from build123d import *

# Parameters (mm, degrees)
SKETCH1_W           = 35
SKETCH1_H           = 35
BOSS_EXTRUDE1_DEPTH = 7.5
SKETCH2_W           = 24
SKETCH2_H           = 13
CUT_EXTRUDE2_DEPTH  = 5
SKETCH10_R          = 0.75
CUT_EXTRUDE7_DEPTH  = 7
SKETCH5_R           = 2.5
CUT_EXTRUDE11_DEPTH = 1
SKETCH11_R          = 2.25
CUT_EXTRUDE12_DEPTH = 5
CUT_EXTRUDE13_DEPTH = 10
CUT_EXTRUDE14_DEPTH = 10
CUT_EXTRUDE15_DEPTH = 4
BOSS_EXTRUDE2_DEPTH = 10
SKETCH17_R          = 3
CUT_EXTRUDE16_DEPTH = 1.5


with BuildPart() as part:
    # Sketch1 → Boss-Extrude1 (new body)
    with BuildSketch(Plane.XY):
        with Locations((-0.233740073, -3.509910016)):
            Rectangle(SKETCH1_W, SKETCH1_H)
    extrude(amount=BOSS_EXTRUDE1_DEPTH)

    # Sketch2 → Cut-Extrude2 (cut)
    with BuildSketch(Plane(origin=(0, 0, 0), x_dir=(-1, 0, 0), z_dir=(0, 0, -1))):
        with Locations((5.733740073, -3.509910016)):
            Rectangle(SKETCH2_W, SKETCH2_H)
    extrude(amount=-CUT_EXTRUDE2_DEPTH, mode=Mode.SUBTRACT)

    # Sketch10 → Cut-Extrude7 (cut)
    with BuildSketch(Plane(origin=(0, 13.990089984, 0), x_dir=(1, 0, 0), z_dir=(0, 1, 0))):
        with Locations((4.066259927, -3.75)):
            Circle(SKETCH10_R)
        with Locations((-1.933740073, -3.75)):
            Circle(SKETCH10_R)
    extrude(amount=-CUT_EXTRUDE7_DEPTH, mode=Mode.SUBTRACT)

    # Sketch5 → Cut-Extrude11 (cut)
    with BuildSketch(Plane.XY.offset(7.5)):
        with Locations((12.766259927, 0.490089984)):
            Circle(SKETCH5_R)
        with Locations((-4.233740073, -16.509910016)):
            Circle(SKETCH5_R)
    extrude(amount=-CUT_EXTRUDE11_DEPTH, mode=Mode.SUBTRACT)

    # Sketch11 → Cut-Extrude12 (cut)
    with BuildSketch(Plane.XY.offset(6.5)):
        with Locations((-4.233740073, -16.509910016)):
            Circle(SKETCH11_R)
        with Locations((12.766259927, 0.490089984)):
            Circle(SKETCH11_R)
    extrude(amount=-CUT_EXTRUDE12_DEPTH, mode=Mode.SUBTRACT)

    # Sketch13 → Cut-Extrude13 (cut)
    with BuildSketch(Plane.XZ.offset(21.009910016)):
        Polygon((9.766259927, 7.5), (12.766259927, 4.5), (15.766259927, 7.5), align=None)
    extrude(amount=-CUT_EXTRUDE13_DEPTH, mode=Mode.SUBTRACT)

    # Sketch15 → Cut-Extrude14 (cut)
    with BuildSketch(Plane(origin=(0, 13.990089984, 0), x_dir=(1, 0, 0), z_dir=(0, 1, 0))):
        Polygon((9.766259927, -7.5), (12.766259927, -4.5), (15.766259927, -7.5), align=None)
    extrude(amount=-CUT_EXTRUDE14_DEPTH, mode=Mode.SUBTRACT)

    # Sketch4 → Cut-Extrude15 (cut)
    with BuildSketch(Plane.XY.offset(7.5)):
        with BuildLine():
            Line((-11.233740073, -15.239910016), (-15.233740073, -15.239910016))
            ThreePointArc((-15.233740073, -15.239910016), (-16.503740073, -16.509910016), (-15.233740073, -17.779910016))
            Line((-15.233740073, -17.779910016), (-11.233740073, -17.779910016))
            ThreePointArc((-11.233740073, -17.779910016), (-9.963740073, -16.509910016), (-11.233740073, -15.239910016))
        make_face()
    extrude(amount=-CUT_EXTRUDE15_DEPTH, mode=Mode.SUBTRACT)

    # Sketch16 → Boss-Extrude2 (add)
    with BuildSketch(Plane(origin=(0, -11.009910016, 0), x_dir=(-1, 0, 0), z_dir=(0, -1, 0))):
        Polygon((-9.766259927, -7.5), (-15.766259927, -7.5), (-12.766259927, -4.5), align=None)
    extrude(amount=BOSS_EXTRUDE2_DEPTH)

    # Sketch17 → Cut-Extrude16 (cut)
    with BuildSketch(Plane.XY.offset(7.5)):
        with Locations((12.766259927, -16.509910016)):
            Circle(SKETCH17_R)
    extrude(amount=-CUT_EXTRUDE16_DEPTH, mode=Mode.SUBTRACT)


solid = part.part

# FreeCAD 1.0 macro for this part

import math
import FreeCAD as App
import Part
import Sketcher
from FreeCAD import Vector


def add_polygon(sketch, points):
    """Adds a closed chain of lines whose ends are joined by coincident constraints."""
    first, n = sketch.GeometryCount, len(points)
    for a, b in zip(points, points[1:] + points[:1]):
        sketch.addGeometry(Part.LineSegment(App.Vector(*a, 0), App.Vector(*b, 0)), False)
    for i in range(n):
        sketch.addConstraint(Sketcher.Constraint("Coincident", first + i, 2, first + (i + 1) % n, 1))

doc = App.newDocument("Part")
params = doc.addObject("Spreadsheet::Sheet", "Params")
for row, (alias, value) in enumerate([
    ("sketch1_width", "35 mm"),
    ("pad1_length", "7.5 mm"),
    ("sketch2_width", "24 mm"),
    ("sketch2_height", "13 mm"),
    ("pocket1_length", "5 mm"),
    ("sketch3_diameter", "1.5 mm"),
    ("pocket2_length", "7 mm"),
    ("sketch4_diameter", "5 mm"),
    ("pocket3_length", "1 mm"),
    ("sketch5_diameter", "4.5 mm"),
    ("pocket4_length", "5 mm"),
    ("sketch6_width", "6 mm"),
    ("pocket5_length", "10 mm"),
    ("sketch7_width", "6 mm"),
    ("pocket6_length", "10 mm"),
    ("sketch8_width", "4 mm"),
    ("sketch8_radius", "1.27 mm"),
    ("pocket7_length", "4 mm"),
    ("sketch9_width", "6 mm"),
    ("pad2_length", "10 mm"),
    ("sketch10_diameter", "6 mm"),
    ("pocket8_length", "1.5 mm"),
], start=1):
    params.set(f"A{row}", alias)
    params.set(f"B{row}", "=" + value)
    params.setAlias(f"B{row}", alias)

body = doc.addObject("PartDesign::Body", "Body")

# Sketch on XY plane
sketch1 = body.newObject("Sketcher::SketchObject", "Sketch")
sketch1.AttachmentSupport = (doc.getObject("XY_Plane"), [""])
sketch1.MapMode = "FlatFace"
add_polygon(sketch1, [(-18, 14), (-18, -21), (17, -21), (17, 14)])  # lines 0-3
sketch1.addConstraint([
    Sketcher.Constraint("Vertical", 0),
    Sketcher.Constraint("Horizontal", 1),
    Sketcher.Constraint("Vertical", 2),
    Sketcher.Constraint("Horizontal", 3),
    Sketcher.Constraint("Equal", 3, 0),
    Sketcher.Constraint("DistanceX", 1, 1, 1, 2, 35.0),
    Sketcher.Constraint("DistanceX", 0, 2, -1, 1, 17.73374),
    Sketcher.Constraint("DistanceY", 0, 2, -1, 1, 21.00991),
])
sketch1.setExpression("Constraints[9]", "Params.sketch1_width")
pad1 = body.newObject("PartDesign::Pad", "Pad")
pad1.Profile = sketch1
pad1.setExpression("Length", "Params.pad1_length")

# Sketch on XY plane
sketch2 = body.newObject("Sketcher::SketchObject", "Sketch001")
sketch2.AttachmentSupport = (doc.getObject("XY_Plane"), [""])
sketch2.MapMode = "FlatFace"
add_polygon(sketch2, [(6, 3), (6, -10), (-18, -10), (-18, 3)])  # lines 0-3
sketch2.addConstraint([
    Sketcher.Constraint("Vertical", 0),
    Sketcher.Constraint("Horizontal", 1),
    Sketcher.Constraint("Vertical", 2),
    Sketcher.Constraint("Horizontal", 3),
    Sketcher.Constraint("DistanceX", 1, 2, 1, 1, 24.0),
    Sketcher.Constraint("DistanceY", 0, 2, 0, 1, 13.0),
    Sketcher.Constraint("DistanceX", -1, 1, 0, 2, 6.26626),
    Sketcher.Constraint("DistanceY", 0, 2, -1, 1, 10.00991),
])
sketch2.setExpression("Constraints[8]", "Params.sketch2_width")
sketch2.setExpression("Constraints[9]", "Params.sketch2_height")
pocket1 = body.newObject("PartDesign::Pocket", "Pocket")
pocket1.Profile = sketch2
pocket1.setExpression("Length", "Params.pocket1_length")
pocket1.Reversed = True

# Sketch on XZ plane
sketch3 = body.newObject("Sketcher::SketchObject", "Sketch002")
sketch3.AttachmentSupport = (doc.getObject("XZ_Plane"), [""])
sketch3.MapMode = "FlatFace"
sketch3.AttachmentOffset = App.Placement(Vector(0, 0, -13.99009), App.Rotation())
sketch3.addGeometry([
    Part.Circle(Vector(4.1, 3.8, 0), Vector(0, 0, 1), 0.8),
    Part.Circle(Vector(-1.9, 3.8, 0), Vector(0, 0, 1), 0.8),
], False)
sketch3.addConstraint([
    Sketcher.Constraint("Equal", 0, 1),
    Sketcher.Constraint("Horizontal", 0, 3, 1, 3),
    Sketcher.Constraint("Diameter", 0, 1.5),
    Sketcher.Constraint("DistanceX", 1, 3, 0, 3, 6.0),
    Sketcher.Constraint("DistanceY", -1, 1, 0, 3, 3.75),
    Sketcher.Constraint("DistanceX", -1, 1, 0, 3, 4.06626),
])
sketch3.setExpression("Constraints[2]", "Params.sketch3_diameter")
pocket2 = body.newObject("PartDesign::Pocket", "Pocket001")
pocket2.Profile = sketch3
pocket2.setExpression("Length", "Params.pocket2_length")
pocket2.Reversed = True

# Sketch on XY plane
sketch4 = body.newObject("Sketcher::SketchObject", "Sketch003")
sketch4.AttachmentSupport = (doc.getObject("XY_Plane"), [""])
sketch4.MapMode = "FlatFace"
sketch4.AttachmentOffset = App.Placement(Vector(0, 0, 7.5), App.Rotation())
sketch4.addGeometry([
    Part.Circle(Vector(12.8, 0.5, 0), Vector(0, 0, 1), 2.5),
    Part.Circle(Vector(-4.2, -16.5, 0), Vector(0, 0, 1), 2.5),
], False)
sketch4.addConstraint([
    Sketcher.Constraint("Equal", 0, 1),
    Sketcher.Constraint("Diameter", 0, 5.0),
    Sketcher.Constraint("DistanceX", 1, 3, 0, 3, 17.0),
    Sketcher.Constraint("DistanceY", 1, 3, 0, 3, 17.0),
    Sketcher.Constraint("DistanceX", -1, 1, 0, 3, 12.76626),
    Sketcher.Constraint("DistanceY", -1, 1, 0, 3, 0.49009),
])
sketch4.setExpression("Constraints[1]", "Params.sketch4_diameter")
pocket3 = body.newObject("PartDesign::Pocket", "Pocket002")
pocket3.Profile = sketch4
pocket3.setExpression("Length", "Params.pocket3_length")

# Sketch on XY plane
sketch5 = body.newObject("Sketcher::SketchObject", "Sketch004")
sketch5.AttachmentSupport = (doc.getObject("XY_Plane"), [""])
sketch5.MapMode = "FlatFace"
sketch5.AttachmentOffset = App.Placement(Vector(0, 0, 6.5), App.Rotation())
sketch5.addGeometry([
    Part.Circle(Vector(-4.2, -16.5, 0), Vector(0, 0, 1), 2.2),
    Part.Circle(Vector(12.8, 0.5, 0), Vector(0, 0, 1), 2.2),
], False)
sketch5.addConstraint([
    Sketcher.Constraint("Equal", 0, 1),
    Sketcher.Constraint("Diameter", 0, 4.5),
    Sketcher.Constraint("DistanceX", 0, 3, 1, 3, 17.0),
    Sketcher.Constraint("DistanceY", 0, 3, 1, 3, 17.0),
    Sketcher.Constraint("DistanceX", 0, 3, -1, 1, 4.23374),
    Sketcher.Constraint("DistanceY", 0, 3, -1, 1, 16.50991),
])
sketch5.setExpression("Constraints[1]", "Params.sketch5_diameter")
pocket4 = body.newObject("PartDesign::Pocket", "Pocket003")
pocket4.Profile = sketch5
pocket4.setExpression("Length", "Params.pocket4_length")

# Sketch on XZ plane
sketch6 = body.newObject("Sketcher::SketchObject", "Sketch005")
sketch6.AttachmentSupport = (doc.getObject("XZ_Plane"), [""])
sketch6.MapMode = "FlatFace"
sketch6.AttachmentOffset = App.Placement(Vector(0, 0, 21.00991), App.Rotation())
add_polygon(sketch6, [(9.8, 7.5), (12.8, 4.5), (15.8, 7.5)])  # lines 0-2
sketch6.addConstraint([
    Sketcher.Constraint("Horizontal", 2),
    Sketcher.Constraint("Perpendicular", 0, 1),
    Sketcher.Constraint("Equal", 0, 1),
    Sketcher.Constraint("DistanceX", 2, 2, 2, 1, 6.0),
    Sketcher.Constraint("DistanceY", -1, 1, 0, 2, 4.5),
    Sketcher.Constraint("DistanceX", -1, 1, 0, 2, 12.76626),
])
sketch6.setExpression("Constraints[6]", "Params.sketch6_width")
pocket5 = body.newObject("PartDesign::Pocket", "Pocket004")
pocket5.Profile = sketch6
pocket5.setExpression("Length", "Params.pocket5_length")

# Sketch on XZ plane
sketch7 = body.newObject("Sketcher::SketchObject", "Sketch006")
sketch7.AttachmentSupport = (doc.getObject("XZ_Plane"), [""])
sketch7.MapMode = "FlatFace"
sketch7.AttachmentOffset = App.Placement(Vector(0, 0, -13.99009), App.Rotation())
add_polygon(sketch7, [(12.8, 4.5), (9.8, 7.5), (15.8, 7.5)])  # lines 0-2
sketch7.addConstraint([
    Sketcher.Constraint("Horizontal", 1),
    Sketcher.Constraint("Perpendicular", 0, 2),
    Sketcher.Constraint("Equal", 0, 2),
    Sketcher.Constraint("DistanceX", 1, 1, 1, 2, 6.0),
    Sketcher.Constraint("DistanceY", -1, 1, 0, 2, 7.5),
    Sketcher.Constraint("DistanceX", -1, 1, 0, 2, 9.76626),
])
sketch7.setExpression("Constraints[6]", "Params.sketch7_width")
pocket6 = body.newObject("PartDesign::Pocket", "Pocket005")
pocket6.Profile = sketch7
pocket6.setExpression("Length", "Params.pocket6_length")
pocket6.Reversed = True

# Sketch on XY plane
sketch8 = body.newObject("Sketcher::SketchObject", "Sketch007")
sketch8.AttachmentSupport = (doc.getObject("XY_Plane"), [""])
sketch8.MapMode = "FlatFace"
sketch8.AttachmentOffset = App.Placement(Vector(0, 0, 7.5), App.Rotation())
sketch8.addGeometry([
    Part.LineSegment(Vector(-11.2, -15.2, 0), Vector(-15.2, -15.2, 0)),
    Part.ArcOfCircle(Part.Circle(Vector(-15.2, -16.5, 0), Vector(0, 0, 1), 1.3), math.radians(90), math.radians(270)),
    Part.LineSegment(Vector(-15.2, -17.8, 0), Vector(-11.2, -17.8, 0)),
    Part.ArcOfCircle(Part.Circle(Vector(-11.2, -16.5, 0), Vector(0, 0, 1), 1.3), math.radians(-90), math.radians(90)),
], False)
sketch8.addConstraint([
    Sketcher.Constraint("Tangent", 0, 2, 1, 1),
    Sketcher.Constraint("Tangent", 1, 2, 2, 1),
    Sketcher.Constraint("Tangent", 2, 2, 3, 1),
    Sketcher.Constraint("Tangent", 3, 2, 0, 1),
    Sketcher.Constraint("Horizontal", 0),
    Sketcher.Constraint("Horizontal", 2),
    Sketcher.Constraint("DistanceX", 0, 2, 0, 1, 4.0),
    Sketcher.Constraint("Radius", 1, 1.27),
    Sketcher.Constraint("DistanceX", 1, 3, -1, 1, 15.23374),
    Sketcher.Constraint("DistanceY", 1, 3, -1, 1, 16.50991),
])
sketch8.setExpression("Constraints[6]", "Params.sketch8_width")
sketch8.setExpression("Constraints[7]", "Params.sketch8_radius")
pocket7 = body.newObject("PartDesign::Pocket", "Pocket006")
pocket7.Profile = sketch8
pocket7.setExpression("Length", "Params.pocket7_length")

# Sketch on XZ plane
sketch9 = body.newObject("Sketcher::SketchObject", "Sketch008")
sketch9.AttachmentSupport = (doc.getObject("XZ_Plane"), [""])
sketch9.MapMode = "FlatFace"
sketch9.AttachmentOffset = App.Placement(Vector(0, 0, 11.00991), App.Rotation())
add_polygon(sketch9, [(15.8, 7.5), (9.8, 7.5), (12.8, 4.5)])  # lines 0-2
sketch9.addConstraint([
    Sketcher.Constraint("Horizontal", 0),
    Sketcher.Constraint("Perpendicular", 1, 2),
    Sketcher.Constraint("Equal", 1, 2),
    Sketcher.Constraint("DistanceX", 0, 2, 0, 1, 6.0),
    Sketcher.Constraint("DistanceY", -1, 1, 0, 2, 7.5),
    Sketcher.Constraint("DistanceX", -1, 1, 0, 2, 9.76626),
])
sketch9.setExpression("Constraints[6]", "Params.sketch9_width")
pad2 = body.newObject("PartDesign::Pad", "Pad001")
pad2.Profile = sketch9
pad2.setExpression("Length", "Params.pad2_length")

# Sketch on XY plane
sketch10 = body.newObject("Sketcher::SketchObject", "Sketch009")
sketch10.AttachmentSupport = (doc.getObject("XY_Plane"), [""])
sketch10.MapMode = "FlatFace"
sketch10.AttachmentOffset = App.Placement(Vector(0, 0, 7.5), App.Rotation())
sketch10.addGeometry(Part.Circle(Vector(12.8, -16.5, 0), Vector(0, 0, 1), 3), False)
sketch10.addConstraint([
    Sketcher.Constraint("Diameter", 0, 6.0),
    Sketcher.Constraint("DistanceX", -1, 1, 0, 3, 12.76626),
    Sketcher.Constraint("DistanceY", 0, 3, -1, 1, 16.50991),
])
sketch10.setExpression("Constraints[0]", "Params.sketch10_diameter")
pocket8 = body.newObject("PartDesign::Pocket", "Pocket007")
pocket8.Profile = sketch10
pocket8.setExpression("Length", "Params.pocket8_length")

doc.recompute()
